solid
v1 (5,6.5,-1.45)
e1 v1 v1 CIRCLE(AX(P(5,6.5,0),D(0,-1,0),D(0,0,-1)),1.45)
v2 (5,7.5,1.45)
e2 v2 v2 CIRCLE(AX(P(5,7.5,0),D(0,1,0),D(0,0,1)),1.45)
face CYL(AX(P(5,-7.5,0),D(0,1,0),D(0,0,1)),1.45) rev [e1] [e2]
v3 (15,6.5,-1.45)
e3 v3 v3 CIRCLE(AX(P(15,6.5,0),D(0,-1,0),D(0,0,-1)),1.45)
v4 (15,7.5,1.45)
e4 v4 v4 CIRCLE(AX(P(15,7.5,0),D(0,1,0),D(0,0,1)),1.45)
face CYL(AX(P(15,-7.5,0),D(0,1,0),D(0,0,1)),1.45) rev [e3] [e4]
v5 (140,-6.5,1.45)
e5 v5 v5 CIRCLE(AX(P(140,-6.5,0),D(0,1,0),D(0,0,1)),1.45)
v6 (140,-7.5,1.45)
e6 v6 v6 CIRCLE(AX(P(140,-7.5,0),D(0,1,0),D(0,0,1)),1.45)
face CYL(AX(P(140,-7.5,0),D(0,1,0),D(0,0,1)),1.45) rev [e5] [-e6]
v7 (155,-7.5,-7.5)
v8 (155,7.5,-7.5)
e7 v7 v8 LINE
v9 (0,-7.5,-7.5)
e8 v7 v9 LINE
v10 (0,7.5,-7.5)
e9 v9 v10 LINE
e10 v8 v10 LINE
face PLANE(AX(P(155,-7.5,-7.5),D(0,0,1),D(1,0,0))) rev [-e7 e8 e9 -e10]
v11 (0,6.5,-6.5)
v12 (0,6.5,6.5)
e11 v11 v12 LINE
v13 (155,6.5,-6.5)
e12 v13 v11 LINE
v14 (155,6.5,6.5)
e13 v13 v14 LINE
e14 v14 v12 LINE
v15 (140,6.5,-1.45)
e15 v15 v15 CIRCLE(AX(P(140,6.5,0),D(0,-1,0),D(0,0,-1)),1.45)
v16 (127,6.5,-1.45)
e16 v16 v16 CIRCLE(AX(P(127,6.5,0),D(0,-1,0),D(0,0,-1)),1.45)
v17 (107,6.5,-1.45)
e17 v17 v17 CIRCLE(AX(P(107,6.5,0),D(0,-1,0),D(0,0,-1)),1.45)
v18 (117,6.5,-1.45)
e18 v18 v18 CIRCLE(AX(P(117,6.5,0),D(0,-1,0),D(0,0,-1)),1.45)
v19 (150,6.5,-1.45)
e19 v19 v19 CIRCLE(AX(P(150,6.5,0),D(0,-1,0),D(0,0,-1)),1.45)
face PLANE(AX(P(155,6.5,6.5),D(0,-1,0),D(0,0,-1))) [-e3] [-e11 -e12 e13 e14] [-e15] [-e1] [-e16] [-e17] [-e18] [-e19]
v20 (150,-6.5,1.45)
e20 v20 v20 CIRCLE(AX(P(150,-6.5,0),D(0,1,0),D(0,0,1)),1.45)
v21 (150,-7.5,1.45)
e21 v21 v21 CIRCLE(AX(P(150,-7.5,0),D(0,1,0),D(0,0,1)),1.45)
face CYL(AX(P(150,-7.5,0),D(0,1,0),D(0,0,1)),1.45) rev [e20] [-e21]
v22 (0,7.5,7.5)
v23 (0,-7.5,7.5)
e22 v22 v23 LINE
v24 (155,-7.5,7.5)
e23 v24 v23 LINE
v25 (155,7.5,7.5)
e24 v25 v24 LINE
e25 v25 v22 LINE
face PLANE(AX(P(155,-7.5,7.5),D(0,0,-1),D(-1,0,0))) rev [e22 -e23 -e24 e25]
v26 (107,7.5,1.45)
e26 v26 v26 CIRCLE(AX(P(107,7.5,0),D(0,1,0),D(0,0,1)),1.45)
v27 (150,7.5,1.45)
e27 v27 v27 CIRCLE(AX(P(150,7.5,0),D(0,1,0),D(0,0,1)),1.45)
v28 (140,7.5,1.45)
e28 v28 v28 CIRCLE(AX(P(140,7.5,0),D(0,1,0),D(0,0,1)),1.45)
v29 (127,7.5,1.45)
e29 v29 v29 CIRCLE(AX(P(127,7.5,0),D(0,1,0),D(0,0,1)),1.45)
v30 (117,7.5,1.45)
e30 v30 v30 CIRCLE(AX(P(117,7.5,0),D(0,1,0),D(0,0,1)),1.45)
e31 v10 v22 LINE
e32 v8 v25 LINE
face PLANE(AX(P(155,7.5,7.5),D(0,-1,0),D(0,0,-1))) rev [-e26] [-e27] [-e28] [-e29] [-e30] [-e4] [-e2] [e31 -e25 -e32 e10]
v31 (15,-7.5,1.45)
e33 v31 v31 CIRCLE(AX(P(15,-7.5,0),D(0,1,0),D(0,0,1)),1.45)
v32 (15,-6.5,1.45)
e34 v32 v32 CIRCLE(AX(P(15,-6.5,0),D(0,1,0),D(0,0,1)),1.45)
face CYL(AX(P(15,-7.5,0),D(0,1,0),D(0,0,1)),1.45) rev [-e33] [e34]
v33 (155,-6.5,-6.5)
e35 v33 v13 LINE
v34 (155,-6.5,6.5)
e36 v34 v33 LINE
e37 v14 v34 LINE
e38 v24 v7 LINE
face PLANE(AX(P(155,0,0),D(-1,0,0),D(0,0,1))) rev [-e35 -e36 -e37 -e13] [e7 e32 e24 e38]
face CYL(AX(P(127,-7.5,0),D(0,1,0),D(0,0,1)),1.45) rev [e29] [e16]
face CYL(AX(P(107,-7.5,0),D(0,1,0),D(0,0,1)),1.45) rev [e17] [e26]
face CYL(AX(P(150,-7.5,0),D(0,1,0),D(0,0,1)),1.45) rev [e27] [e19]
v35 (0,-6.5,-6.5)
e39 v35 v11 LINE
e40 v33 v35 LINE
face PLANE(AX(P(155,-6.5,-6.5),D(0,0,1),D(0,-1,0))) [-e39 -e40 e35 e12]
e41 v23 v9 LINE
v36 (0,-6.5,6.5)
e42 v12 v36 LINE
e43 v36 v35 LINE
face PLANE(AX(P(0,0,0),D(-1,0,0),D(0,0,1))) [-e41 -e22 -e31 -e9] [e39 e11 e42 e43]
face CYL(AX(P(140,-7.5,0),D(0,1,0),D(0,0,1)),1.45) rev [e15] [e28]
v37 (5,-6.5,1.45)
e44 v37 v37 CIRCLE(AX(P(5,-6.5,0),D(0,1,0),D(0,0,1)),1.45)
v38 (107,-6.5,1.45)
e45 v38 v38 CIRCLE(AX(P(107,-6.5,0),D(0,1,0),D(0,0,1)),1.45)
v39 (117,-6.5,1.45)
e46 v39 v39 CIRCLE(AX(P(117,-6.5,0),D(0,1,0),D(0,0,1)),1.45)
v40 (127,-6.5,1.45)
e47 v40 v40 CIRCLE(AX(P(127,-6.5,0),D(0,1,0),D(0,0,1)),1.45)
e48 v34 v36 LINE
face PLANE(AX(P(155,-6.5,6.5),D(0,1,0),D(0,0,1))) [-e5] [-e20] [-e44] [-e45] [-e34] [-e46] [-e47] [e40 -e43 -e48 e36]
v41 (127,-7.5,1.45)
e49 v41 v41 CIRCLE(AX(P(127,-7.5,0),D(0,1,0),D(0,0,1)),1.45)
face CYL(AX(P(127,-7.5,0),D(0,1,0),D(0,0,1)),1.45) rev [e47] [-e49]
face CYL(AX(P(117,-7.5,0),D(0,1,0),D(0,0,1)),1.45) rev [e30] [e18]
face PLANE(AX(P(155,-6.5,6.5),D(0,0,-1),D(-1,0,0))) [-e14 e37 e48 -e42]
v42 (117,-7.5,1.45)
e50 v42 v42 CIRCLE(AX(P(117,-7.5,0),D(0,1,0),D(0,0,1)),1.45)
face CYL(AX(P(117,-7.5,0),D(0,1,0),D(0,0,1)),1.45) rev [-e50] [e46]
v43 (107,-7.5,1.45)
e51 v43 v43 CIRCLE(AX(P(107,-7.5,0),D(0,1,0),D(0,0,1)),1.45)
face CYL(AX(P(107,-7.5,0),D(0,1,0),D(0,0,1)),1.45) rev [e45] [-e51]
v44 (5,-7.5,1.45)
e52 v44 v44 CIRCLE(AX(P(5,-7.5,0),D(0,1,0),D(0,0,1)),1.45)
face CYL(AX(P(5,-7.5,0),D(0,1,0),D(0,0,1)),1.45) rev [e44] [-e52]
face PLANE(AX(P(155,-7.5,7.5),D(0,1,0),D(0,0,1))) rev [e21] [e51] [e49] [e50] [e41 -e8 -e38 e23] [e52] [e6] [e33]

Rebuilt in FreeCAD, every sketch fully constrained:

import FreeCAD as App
import Part
import Sketcher
from FreeCAD import Vector
Q = App.Units.Quantity


def add_polygon(sketch, points):
    """Adds a closed chain of lines whose ends are joined by coincident constraints."""
    first, n = sketch.GeometryCount, len(points)
    for a, b in zip(points, points[1:] + points[:1]):
        sketch.addGeometry(Part.LineSegment(App.Vector(*a, 0), App.Vector(*b, 0)), False)
    for i in range(n):
        sketch.addConstraint(Sketcher.Constraint("Coincident", first + i, 2, first + (i + 1) % n, 1))

doc = App.newDocument("Part")
body = doc.addObject("PartDesign::Body", "Body")

# Sketch on YZ plane
sketch1 = body.newObject("Sketcher::SketchObject", "Sketch")
sketch1.AttachmentSupport = (doc.getObject("YZ_Plane"), [""])
sketch1.MapMode = "FlatFace"
add_polygon(sketch1, [(7.5, 7.5), (-7.5, 7.5), (-7.5, -7.5), (7.5, -7.5)])  # lines 0-3
add_polygon(sketch1, [(-6.5, -6.5), (-6.5, 6.5), (6.5, 6.5), (6.5, -6.5)])  # lines 4-7
sketch1.addConstraint(Sketcher.Constraint("Horizontal", 0))
sketch1.addConstraint(Sketcher.Constraint("Vertical", 1))
sketch1.addConstraint(Sketcher.Constraint("Horizontal", 2))
sketch1.addConstraint(Sketcher.Constraint("Vertical", 3))
sketch1.addConstraint(Sketcher.Constraint("Vertical", 4))
sketch1.addConstraint(Sketcher.Constraint("Horizontal", 5))
sketch1.addConstraint(Sketcher.Constraint("Vertical", 6))
sketch1.addConstraint(Sketcher.Constraint("Horizontal", 7))
sketch1.addConstraint(Sketcher.Constraint("Symmetric", 0, 2, 2, 2, -1, 1))
sketch1.addConstraint(Sketcher.Constraint("Symmetric", 4, 2, 6, 2, -1, 1))
sketch1.addConstraint(Sketcher.Constraint("Equal", 2, 1))
sketch1.addConstraint(Sketcher.Constraint("Equal", 7, 4))
sketch1.addConstraint(Sketcher.Constraint("DistanceX", 0, 2, 0, 1, Q("15 mm")))
sketch1.addConstraint(Sketcher.Constraint("DistanceX", 5, 1, 5, 2, Q("13 mm")))
pad1 = body.newObject("PartDesign::Pad", "Pad")
pad1.Profile = sketch1
pad1.Length = 155

# Sketch on XZ plane
sketch2 = body.newObject("Sketcher::SketchObject", "Sketch001")
sketch2.AttachmentSupport = (doc.getObject("XZ_Plane"), [""])
sketch2.MapMode = "FlatFace"
sketch2.AttachmentOffset = App.Placement(Vector(0, 0, -7.5), App.Rotation())
sketch2.addGeometry(Part.Circle(Vector(5, 0, 0), Vector(0, 0, 1), 1.45), False)
sketch2.addGeometry(Part.Circle(Vector(15, 0, 0), Vector(0, 0, 1), 1.45), False)
sketch2.addGeometry(Part.Circle(Vector(140, 0, 0), Vector(0, 0, 1), 1.45), False)
sketch2.addGeometry(Part.Circle(Vector(150, 0, 0), Vector(0, 0, 1), 1.45), False)
sketch2.addGeometry(Part.Circle(Vector(127, 0, 0), Vector(0, 0, 1), 1.45), False)
sketch2.addGeometry(Part.Circle(Vector(117, 0, 0), Vector(0, 0, 1), 1.45), False)
sketch2.addGeometry(Part.Circle(Vector(107, 0, 0), Vector(0, 0, 1), 1.45), False)
sketch2.addConstraint(Sketcher.Constraint("Equal", 0, 1))
sketch2.addConstraint(Sketcher.Constraint("Equal", 1, 2))
sketch2.addConstraint(Sketcher.Constraint("Equal", 2, 3))
sketch2.addConstraint(Sketcher.Constraint("Equal", 3, 4))
sketch2.addConstraint(Sketcher.Constraint("Equal", 4, 5))
sketch2.addConstraint(Sketcher.Constraint("Equal", 5, 6))
sketch2.addConstraint(Sketcher.Constraint("PointOnObject", 0, 3, -1))
sketch2.addConstraint(Sketcher.Constraint("PointOnObject", 1, 3, -1))
sketch2.addConstraint(Sketcher.Constraint("PointOnObject", 2, 3, -1))
sketch2.addConstraint(Sketcher.Constraint("PointOnObject", 3, 3, -1))
sketch2.addConstraint(Sketcher.Constraint("PointOnObject", 4, 3, -1))
sketch2.addConstraint(Sketcher.Constraint("PointOnObject", 5, 3, -1))
sketch2.addConstraint(Sketcher.Constraint("PointOnObject", 6, 3, -1))
sketch2.addConstraint(Sketcher.Constraint("Diameter", 0, Q("2.9 mm")))
sketch2.addConstraint(Sketcher.Constraint("DistanceX", -1, 1, 0, 3, Q("5 mm")))
sketch2.addConstraint(Sketcher.Constraint("DistanceX", -1, 1, 1, 3, Q("15 mm")))
sketch2.addConstraint(Sketcher.Constraint("DistanceX", -1, 1, 2, 3, Q("140 mm")))
sketch2.addConstraint(Sketcher.Constraint("DistanceX", -1, 1, 3, 3, Q("150 mm")))
sketch2.addConstraint(Sketcher.Constraint("DistanceX", -1, 1, 4, 3, Q("127 mm")))
sketch2.addConstraint(Sketcher.Constraint("DistanceX", -1, 1, 5, 3, Q("117 mm")))
sketch2.addConstraint(Sketcher.Constraint("DistanceX", -1, 1, 6, 3, Q("107 mm")))
pocket1 = body.newObject("PartDesign::Pocket", "Pocket")
pocket1.Profile = sketch2
pocket1.Type = "ThroughAll"
pocket1.Reversed = True

doc.recompute()
